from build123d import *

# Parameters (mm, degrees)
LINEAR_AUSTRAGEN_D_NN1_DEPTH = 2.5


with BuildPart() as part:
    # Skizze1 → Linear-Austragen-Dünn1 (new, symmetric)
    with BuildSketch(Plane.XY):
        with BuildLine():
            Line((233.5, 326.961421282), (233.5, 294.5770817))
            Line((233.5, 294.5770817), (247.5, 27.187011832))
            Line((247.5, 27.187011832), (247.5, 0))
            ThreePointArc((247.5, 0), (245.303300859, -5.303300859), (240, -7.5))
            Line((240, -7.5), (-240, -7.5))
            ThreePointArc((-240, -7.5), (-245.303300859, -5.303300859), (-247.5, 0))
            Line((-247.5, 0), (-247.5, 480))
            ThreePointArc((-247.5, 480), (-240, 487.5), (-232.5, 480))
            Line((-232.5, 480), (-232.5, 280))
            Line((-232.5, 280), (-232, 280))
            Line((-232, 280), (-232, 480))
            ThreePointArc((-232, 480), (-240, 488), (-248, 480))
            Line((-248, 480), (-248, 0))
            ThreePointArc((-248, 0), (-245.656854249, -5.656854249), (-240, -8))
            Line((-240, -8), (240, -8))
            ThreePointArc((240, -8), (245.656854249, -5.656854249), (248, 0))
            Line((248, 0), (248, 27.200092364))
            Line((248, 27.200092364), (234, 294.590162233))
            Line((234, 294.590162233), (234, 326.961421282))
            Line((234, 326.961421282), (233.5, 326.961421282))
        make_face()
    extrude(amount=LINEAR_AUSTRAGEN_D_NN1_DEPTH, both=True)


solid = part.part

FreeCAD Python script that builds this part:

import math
import FreeCAD as App
import Part
import Sketcher

V = App.Vector
Q = App.Units.Quantity

doc = App.newDocument("Part")
params = doc.addObject("Spreadsheet::Sheet", "Params")
for row, (alias, value) in enumerate([
    ("sketch1_radius", "8 mm"),
    ("sketch1_radius2", "7.5 mm"),
    ("sketch1_width", "480 mm"),
    ("sketch1_height", "200 mm"),
    ("pad1_length", "5 mm"),
], start=1):
    params.set(f"A{row}", alias)
    params.set(f"B{row}", "=" + value)
    params.setAlias(f"B{row}", alias)

body = doc.addObject("PartDesign::Body", "Body")

sketch1 = body.newObject("Sketcher::SketchObject", "Sketch")
sketch1.AttachmentSupport = (doc.getObject("XY_Plane"), [""])
sketch1.MapMode = "FlatFace"
sketch1.addGeometry([
    Part.LineSegment(V(233.5, 327, 0), V(233.5, 294.6, 0)),
    Part.LineSegment(V(233.5, 294.6, 0), V(247.5, 27.2, 0)),
    Part.LineSegment(V(247.5, 27.2, 0), V(247.5, 0, 0)),
    Part.ArcOfCircle(Part.Circle(V(240, 0, 0), V(0, 0, 1), 7.5), math.radians(-90), math.radians(0)),
    Part.LineSegment(V(240, -7.5, 0), V(-240, -7.5, 0)),
    Part.ArcOfCircle(Part.Circle(V(-240, 0, 0), V(0, 0, 1), 7.5), math.radians(180), math.radians(270)),
    Part.LineSegment(V(-247.5, 0, 0), V(-247.5, 480, 0)),
    Part.ArcOfCircle(Part.Circle(V(-240, 480, 0), V(0, 0, 1), 7.5), math.radians(0), math.radians(180)),
    Part.LineSegment(V(-232.5, 480, 0), V(-232.5, 280, 0)),
    Part.LineSegment(V(-232.5, 280, 0), V(-232, 280, 0)),
    Part.LineSegment(V(-232, 280, 0), V(-232, 480, 0)),
    Part.ArcOfCircle(Part.Circle(V(-240, 480, 0), V(0, 0, 1), 8), math.radians(0), math.radians(180)),
    Part.LineSegment(V(-248, 480, 0), V(-248, 0, 0)),
    Part.ArcOfCircle(Part.Circle(V(-240, 0, 0), V(0, 0, 1), 8), math.radians(-180), math.radians(-90)),
    Part.LineSegment(V(-240, -8, 0), V(240, -8, 0)),
    Part.ArcOfCircle(Part.Circle(V(240, 0, 0), V(0, 0, 1), 8), math.radians(-90), math.radians(0)),
    Part.LineSegment(V(248, 0, 0), V(248, 27.2, 0)),
    Part.LineSegment(V(248, 27.2, 0), V(234, 294.6, 0)),
    Part.LineSegment(V(234, 294.6, 0), V(234, 327, 0)),
    Part.LineSegment(V(234, 327, 0), V(233.5, 327, 0)),
], False)
sketch1.addConstraint([
    Sketcher.Constraint("Coincident", 0, 2, 1, 1),
    Sketcher.Constraint("Coincident", 1, 2, 2, 1),
    Sketcher.Constraint("Tangent", 2, 2, 3, 2),
    Sketcher.Constraint("Tangent", 3, 1, 4, 1),
    Sketcher.Constraint("Tangent", 4, 2, 5, 2),
    Sketcher.Constraint("Tangent", 5, 1, 6, 1),
    Sketcher.Constraint("Tangent", 6, 2, 7, 2),
    Sketcher.Constraint("Tangent", 7, 1, 8, 1),
    Sketcher.Constraint("Coincident", 8, 2, 9, 1),
    Sketcher.Constraint("Coincident", 9, 2, 10, 1),
    Sketcher.Constraint("Tangent", 10, 2, 11, 1),
    Sketcher.Constraint("Tangent", 11, 2, 12, 1),
    Sketcher.Constraint("Tangent", 12, 2, 13, 1),
    Sketcher.Constraint("Tangent", 13, 2, 14, 1),
    Sketcher.Constraint("Tangent", 14, 2, 15, 1),
    Sketcher.Constraint("Tangent", 15, 2, 16, 1),
    Sketcher.Constraint("Coincident", 16, 2, 17, 1),
    Sketcher.Constraint("Coincident", 17, 2, 18, 1),
    Sketcher.Constraint("Coincident", 18, 2, 19, 1),
    Sketcher.Constraint("Coincident", 19, 2, 0, 1),
    Sketcher.Constraint("Vertical", 0),
    Sketcher.Constraint("Vertical", 2),
    Sketcher.Constraint("Horizontal", 4),
    Sketcher.Constraint("Vertical", 6),
    Sketcher.Constraint("Vertical", 8),
    Sketcher.Constraint("Horizontal", 9),
    Sketcher.Constraint("Vertical", 10),
    Sketcher.Constraint("Vertical", 12),
    Sketcher.Constraint("Horizontal", 14),
    Sketcher.Constraint("Vertical", 16),
    Sketcher.Constraint("Vertical", 18),
    Sketcher.Constraint("Horizontal", 19),
    Sketcher.Constraint("Coincident", 11, 3, 7, 3),
    Sketcher.Constraint("Coincident", 13, 3, 5, 3),
    Sketcher.Constraint("Coincident", 15, 3, 3, 3),
    Sketcher.Constraint("Equal", 3, 5),
    Sketcher.Constraint("Equal", 5, 7),
    Sketcher.Constraint("Symmetric", 3, 3, 5, 3, -1, 1),
    Sketcher.Constraint("Parallel", 1, 17),
    Sketcher.Constraint("Equal", 9, 19),
    Sketcher.Constraint("Equal", 14, 6),
    Sketcher.Constraint("Radius", 11, Q("8 mm")),
    Sketcher.Constraint("Radius", 3, Q("7.5 mm")),
    Sketcher.Constraint("DistanceX", 4, 2, 4, 1, Q("480 mm")),
    Sketcher.Constraint("DistanceY", 8, 2, 8, 1, Q("200 mm")),
    Sketcher.Constraint("DistanceX", -1, 1, 17, 2, Q("234 mm")),
    Sketcher.Constraint("DistanceY", 0, 2, 0, 1, Q("32.38434 mm")),
    Sketcher.Constraint("DistanceY", 2, 2, 2, 1, Q("27.187012 mm")),
    Sketcher.Constraint("DistanceY", 18, 1, 18, 2, Q("32.371259 mm")),
    Sketcher.Constraint("DistanceY", -1, 1, 0, 2, Q("294.577082 mm")),
])
sketch1.setExpression("Constraints[41]", "Params.sketch1_radius")
sketch1.setExpression("Constraints[42]", "Params.sketch1_radius2")
sketch1.setExpression("Constraints[43]", "Params.sketch1_width")
sketch1.setExpression("Constraints[44]", "Params.sketch1_height")
pad1 = body.newObject("PartDesign::Pad", "Pad")
pad1.Profile = sketch1
pad1.setExpression("Length", "Params.pad1_length")
pad1.Midplane = True

doc.recompute()
